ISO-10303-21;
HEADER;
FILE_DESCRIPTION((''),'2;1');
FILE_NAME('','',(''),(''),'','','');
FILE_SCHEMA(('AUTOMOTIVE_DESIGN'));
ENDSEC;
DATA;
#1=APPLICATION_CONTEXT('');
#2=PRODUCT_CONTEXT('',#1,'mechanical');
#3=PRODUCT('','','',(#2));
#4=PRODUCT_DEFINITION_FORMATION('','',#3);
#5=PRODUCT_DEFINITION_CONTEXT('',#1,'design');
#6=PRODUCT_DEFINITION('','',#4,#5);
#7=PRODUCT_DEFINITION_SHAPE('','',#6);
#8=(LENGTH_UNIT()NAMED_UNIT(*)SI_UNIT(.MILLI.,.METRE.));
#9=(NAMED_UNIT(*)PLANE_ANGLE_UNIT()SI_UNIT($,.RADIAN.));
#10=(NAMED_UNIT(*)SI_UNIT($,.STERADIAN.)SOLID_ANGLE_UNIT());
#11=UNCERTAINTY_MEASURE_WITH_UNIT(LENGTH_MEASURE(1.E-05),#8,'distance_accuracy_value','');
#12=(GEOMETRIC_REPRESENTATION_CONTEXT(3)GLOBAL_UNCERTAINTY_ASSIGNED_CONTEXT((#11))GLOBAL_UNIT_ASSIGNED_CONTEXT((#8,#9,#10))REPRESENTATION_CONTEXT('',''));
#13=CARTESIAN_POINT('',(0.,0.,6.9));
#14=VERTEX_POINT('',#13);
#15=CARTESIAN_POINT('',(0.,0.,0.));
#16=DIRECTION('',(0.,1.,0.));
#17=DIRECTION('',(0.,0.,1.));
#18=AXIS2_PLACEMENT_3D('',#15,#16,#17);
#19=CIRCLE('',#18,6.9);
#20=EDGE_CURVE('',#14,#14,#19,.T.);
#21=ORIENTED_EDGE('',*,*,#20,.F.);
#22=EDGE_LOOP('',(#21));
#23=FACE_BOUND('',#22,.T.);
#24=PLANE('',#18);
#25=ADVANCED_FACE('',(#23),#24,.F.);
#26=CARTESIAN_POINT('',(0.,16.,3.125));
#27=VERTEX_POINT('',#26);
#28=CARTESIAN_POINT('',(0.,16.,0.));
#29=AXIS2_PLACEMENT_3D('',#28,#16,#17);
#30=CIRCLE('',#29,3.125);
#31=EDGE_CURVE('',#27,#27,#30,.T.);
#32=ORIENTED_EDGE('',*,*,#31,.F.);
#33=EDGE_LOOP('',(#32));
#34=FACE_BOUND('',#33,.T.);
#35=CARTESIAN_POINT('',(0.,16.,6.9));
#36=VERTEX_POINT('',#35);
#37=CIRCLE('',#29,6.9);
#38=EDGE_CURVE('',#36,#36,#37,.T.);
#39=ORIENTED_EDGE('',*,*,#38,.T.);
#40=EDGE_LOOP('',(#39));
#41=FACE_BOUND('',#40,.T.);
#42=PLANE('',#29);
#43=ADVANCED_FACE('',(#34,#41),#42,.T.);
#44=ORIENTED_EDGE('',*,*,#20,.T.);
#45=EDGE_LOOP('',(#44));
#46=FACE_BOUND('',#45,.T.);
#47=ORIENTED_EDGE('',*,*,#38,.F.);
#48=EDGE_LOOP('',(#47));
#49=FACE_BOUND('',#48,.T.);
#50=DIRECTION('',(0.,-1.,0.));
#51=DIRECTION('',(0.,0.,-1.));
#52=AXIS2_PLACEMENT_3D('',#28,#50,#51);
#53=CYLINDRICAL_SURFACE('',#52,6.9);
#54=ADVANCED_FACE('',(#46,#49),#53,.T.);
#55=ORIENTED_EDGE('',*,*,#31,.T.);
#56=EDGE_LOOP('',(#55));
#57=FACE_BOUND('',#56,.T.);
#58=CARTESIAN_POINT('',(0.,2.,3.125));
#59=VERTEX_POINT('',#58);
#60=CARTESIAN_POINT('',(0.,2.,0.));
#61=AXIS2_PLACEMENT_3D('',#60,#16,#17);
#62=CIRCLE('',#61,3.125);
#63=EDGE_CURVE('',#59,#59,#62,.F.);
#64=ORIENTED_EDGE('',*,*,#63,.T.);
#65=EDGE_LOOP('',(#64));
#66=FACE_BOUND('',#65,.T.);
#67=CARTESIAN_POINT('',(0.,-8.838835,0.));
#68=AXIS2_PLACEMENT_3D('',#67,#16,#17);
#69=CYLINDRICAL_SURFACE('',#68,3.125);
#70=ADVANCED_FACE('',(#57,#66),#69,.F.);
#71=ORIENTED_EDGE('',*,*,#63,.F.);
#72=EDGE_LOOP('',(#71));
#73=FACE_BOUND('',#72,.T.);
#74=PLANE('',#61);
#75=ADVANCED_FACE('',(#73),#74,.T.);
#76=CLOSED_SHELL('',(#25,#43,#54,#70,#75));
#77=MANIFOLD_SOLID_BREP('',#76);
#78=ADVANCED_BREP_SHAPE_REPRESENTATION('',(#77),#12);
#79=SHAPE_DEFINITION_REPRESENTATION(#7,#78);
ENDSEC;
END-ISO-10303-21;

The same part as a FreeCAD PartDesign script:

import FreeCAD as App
import Part
import Sketcher

V = App.Vector

doc = App.newDocument("Part")
body = doc.addObject("PartDesign::Body", "Body")

# Sketch on XZ plane
sketch1 = body.newObject("Sketcher::SketchObject", "Sketch")
sketch1.AttachmentSupport = (doc.getObject("XZ_Plane"), [""])
sketch1.MapMode = "FlatFace"
sketch1.addGeometry(Part.Circle(V(0, 0, 0), V(0, 0, 1), 7), False)
sketch1.addConstraint(Sketcher.Constraint("Coincident", 0, 3, -1, 1))
sketch1.addConstraint(Sketcher.Constraint("Diameter", 0, 13.8))
pad1 = body.newObject("PartDesign::Pad", "Pad")
pad1.Profile = sketch1
pad1.Length = 16
pad1.Reversed = True

# Sketch on XZ plane
sketch2 = body.newObject("Sketcher::SketchObject", "Sketch001")
sketch2.AttachmentSupport = (doc.getObject("XZ_Plane"), [""])
sketch2.MapMode = "FlatFace"
sketch2.AttachmentOffset = App.Placement(V(0, 0, -16), App.Rotation())
sketch2.addGeometry(Part.Circle(V(0, 0, 0), V(0, 0, 1), 3.1), False)
sketch2.addConstraint(Sketcher.Constraint("Coincident", 0, 3, -1, 1))
sketch2.addConstraint(Sketcher.Constraint("Diameter", 0, 6.25))
pocket1 = body.newObject("PartDesign::Pocket", "Pocket")
pocket1.Profile = sketch2
pocket1.Length = 14
pocket1.Reversed = True

doc.recompute()
